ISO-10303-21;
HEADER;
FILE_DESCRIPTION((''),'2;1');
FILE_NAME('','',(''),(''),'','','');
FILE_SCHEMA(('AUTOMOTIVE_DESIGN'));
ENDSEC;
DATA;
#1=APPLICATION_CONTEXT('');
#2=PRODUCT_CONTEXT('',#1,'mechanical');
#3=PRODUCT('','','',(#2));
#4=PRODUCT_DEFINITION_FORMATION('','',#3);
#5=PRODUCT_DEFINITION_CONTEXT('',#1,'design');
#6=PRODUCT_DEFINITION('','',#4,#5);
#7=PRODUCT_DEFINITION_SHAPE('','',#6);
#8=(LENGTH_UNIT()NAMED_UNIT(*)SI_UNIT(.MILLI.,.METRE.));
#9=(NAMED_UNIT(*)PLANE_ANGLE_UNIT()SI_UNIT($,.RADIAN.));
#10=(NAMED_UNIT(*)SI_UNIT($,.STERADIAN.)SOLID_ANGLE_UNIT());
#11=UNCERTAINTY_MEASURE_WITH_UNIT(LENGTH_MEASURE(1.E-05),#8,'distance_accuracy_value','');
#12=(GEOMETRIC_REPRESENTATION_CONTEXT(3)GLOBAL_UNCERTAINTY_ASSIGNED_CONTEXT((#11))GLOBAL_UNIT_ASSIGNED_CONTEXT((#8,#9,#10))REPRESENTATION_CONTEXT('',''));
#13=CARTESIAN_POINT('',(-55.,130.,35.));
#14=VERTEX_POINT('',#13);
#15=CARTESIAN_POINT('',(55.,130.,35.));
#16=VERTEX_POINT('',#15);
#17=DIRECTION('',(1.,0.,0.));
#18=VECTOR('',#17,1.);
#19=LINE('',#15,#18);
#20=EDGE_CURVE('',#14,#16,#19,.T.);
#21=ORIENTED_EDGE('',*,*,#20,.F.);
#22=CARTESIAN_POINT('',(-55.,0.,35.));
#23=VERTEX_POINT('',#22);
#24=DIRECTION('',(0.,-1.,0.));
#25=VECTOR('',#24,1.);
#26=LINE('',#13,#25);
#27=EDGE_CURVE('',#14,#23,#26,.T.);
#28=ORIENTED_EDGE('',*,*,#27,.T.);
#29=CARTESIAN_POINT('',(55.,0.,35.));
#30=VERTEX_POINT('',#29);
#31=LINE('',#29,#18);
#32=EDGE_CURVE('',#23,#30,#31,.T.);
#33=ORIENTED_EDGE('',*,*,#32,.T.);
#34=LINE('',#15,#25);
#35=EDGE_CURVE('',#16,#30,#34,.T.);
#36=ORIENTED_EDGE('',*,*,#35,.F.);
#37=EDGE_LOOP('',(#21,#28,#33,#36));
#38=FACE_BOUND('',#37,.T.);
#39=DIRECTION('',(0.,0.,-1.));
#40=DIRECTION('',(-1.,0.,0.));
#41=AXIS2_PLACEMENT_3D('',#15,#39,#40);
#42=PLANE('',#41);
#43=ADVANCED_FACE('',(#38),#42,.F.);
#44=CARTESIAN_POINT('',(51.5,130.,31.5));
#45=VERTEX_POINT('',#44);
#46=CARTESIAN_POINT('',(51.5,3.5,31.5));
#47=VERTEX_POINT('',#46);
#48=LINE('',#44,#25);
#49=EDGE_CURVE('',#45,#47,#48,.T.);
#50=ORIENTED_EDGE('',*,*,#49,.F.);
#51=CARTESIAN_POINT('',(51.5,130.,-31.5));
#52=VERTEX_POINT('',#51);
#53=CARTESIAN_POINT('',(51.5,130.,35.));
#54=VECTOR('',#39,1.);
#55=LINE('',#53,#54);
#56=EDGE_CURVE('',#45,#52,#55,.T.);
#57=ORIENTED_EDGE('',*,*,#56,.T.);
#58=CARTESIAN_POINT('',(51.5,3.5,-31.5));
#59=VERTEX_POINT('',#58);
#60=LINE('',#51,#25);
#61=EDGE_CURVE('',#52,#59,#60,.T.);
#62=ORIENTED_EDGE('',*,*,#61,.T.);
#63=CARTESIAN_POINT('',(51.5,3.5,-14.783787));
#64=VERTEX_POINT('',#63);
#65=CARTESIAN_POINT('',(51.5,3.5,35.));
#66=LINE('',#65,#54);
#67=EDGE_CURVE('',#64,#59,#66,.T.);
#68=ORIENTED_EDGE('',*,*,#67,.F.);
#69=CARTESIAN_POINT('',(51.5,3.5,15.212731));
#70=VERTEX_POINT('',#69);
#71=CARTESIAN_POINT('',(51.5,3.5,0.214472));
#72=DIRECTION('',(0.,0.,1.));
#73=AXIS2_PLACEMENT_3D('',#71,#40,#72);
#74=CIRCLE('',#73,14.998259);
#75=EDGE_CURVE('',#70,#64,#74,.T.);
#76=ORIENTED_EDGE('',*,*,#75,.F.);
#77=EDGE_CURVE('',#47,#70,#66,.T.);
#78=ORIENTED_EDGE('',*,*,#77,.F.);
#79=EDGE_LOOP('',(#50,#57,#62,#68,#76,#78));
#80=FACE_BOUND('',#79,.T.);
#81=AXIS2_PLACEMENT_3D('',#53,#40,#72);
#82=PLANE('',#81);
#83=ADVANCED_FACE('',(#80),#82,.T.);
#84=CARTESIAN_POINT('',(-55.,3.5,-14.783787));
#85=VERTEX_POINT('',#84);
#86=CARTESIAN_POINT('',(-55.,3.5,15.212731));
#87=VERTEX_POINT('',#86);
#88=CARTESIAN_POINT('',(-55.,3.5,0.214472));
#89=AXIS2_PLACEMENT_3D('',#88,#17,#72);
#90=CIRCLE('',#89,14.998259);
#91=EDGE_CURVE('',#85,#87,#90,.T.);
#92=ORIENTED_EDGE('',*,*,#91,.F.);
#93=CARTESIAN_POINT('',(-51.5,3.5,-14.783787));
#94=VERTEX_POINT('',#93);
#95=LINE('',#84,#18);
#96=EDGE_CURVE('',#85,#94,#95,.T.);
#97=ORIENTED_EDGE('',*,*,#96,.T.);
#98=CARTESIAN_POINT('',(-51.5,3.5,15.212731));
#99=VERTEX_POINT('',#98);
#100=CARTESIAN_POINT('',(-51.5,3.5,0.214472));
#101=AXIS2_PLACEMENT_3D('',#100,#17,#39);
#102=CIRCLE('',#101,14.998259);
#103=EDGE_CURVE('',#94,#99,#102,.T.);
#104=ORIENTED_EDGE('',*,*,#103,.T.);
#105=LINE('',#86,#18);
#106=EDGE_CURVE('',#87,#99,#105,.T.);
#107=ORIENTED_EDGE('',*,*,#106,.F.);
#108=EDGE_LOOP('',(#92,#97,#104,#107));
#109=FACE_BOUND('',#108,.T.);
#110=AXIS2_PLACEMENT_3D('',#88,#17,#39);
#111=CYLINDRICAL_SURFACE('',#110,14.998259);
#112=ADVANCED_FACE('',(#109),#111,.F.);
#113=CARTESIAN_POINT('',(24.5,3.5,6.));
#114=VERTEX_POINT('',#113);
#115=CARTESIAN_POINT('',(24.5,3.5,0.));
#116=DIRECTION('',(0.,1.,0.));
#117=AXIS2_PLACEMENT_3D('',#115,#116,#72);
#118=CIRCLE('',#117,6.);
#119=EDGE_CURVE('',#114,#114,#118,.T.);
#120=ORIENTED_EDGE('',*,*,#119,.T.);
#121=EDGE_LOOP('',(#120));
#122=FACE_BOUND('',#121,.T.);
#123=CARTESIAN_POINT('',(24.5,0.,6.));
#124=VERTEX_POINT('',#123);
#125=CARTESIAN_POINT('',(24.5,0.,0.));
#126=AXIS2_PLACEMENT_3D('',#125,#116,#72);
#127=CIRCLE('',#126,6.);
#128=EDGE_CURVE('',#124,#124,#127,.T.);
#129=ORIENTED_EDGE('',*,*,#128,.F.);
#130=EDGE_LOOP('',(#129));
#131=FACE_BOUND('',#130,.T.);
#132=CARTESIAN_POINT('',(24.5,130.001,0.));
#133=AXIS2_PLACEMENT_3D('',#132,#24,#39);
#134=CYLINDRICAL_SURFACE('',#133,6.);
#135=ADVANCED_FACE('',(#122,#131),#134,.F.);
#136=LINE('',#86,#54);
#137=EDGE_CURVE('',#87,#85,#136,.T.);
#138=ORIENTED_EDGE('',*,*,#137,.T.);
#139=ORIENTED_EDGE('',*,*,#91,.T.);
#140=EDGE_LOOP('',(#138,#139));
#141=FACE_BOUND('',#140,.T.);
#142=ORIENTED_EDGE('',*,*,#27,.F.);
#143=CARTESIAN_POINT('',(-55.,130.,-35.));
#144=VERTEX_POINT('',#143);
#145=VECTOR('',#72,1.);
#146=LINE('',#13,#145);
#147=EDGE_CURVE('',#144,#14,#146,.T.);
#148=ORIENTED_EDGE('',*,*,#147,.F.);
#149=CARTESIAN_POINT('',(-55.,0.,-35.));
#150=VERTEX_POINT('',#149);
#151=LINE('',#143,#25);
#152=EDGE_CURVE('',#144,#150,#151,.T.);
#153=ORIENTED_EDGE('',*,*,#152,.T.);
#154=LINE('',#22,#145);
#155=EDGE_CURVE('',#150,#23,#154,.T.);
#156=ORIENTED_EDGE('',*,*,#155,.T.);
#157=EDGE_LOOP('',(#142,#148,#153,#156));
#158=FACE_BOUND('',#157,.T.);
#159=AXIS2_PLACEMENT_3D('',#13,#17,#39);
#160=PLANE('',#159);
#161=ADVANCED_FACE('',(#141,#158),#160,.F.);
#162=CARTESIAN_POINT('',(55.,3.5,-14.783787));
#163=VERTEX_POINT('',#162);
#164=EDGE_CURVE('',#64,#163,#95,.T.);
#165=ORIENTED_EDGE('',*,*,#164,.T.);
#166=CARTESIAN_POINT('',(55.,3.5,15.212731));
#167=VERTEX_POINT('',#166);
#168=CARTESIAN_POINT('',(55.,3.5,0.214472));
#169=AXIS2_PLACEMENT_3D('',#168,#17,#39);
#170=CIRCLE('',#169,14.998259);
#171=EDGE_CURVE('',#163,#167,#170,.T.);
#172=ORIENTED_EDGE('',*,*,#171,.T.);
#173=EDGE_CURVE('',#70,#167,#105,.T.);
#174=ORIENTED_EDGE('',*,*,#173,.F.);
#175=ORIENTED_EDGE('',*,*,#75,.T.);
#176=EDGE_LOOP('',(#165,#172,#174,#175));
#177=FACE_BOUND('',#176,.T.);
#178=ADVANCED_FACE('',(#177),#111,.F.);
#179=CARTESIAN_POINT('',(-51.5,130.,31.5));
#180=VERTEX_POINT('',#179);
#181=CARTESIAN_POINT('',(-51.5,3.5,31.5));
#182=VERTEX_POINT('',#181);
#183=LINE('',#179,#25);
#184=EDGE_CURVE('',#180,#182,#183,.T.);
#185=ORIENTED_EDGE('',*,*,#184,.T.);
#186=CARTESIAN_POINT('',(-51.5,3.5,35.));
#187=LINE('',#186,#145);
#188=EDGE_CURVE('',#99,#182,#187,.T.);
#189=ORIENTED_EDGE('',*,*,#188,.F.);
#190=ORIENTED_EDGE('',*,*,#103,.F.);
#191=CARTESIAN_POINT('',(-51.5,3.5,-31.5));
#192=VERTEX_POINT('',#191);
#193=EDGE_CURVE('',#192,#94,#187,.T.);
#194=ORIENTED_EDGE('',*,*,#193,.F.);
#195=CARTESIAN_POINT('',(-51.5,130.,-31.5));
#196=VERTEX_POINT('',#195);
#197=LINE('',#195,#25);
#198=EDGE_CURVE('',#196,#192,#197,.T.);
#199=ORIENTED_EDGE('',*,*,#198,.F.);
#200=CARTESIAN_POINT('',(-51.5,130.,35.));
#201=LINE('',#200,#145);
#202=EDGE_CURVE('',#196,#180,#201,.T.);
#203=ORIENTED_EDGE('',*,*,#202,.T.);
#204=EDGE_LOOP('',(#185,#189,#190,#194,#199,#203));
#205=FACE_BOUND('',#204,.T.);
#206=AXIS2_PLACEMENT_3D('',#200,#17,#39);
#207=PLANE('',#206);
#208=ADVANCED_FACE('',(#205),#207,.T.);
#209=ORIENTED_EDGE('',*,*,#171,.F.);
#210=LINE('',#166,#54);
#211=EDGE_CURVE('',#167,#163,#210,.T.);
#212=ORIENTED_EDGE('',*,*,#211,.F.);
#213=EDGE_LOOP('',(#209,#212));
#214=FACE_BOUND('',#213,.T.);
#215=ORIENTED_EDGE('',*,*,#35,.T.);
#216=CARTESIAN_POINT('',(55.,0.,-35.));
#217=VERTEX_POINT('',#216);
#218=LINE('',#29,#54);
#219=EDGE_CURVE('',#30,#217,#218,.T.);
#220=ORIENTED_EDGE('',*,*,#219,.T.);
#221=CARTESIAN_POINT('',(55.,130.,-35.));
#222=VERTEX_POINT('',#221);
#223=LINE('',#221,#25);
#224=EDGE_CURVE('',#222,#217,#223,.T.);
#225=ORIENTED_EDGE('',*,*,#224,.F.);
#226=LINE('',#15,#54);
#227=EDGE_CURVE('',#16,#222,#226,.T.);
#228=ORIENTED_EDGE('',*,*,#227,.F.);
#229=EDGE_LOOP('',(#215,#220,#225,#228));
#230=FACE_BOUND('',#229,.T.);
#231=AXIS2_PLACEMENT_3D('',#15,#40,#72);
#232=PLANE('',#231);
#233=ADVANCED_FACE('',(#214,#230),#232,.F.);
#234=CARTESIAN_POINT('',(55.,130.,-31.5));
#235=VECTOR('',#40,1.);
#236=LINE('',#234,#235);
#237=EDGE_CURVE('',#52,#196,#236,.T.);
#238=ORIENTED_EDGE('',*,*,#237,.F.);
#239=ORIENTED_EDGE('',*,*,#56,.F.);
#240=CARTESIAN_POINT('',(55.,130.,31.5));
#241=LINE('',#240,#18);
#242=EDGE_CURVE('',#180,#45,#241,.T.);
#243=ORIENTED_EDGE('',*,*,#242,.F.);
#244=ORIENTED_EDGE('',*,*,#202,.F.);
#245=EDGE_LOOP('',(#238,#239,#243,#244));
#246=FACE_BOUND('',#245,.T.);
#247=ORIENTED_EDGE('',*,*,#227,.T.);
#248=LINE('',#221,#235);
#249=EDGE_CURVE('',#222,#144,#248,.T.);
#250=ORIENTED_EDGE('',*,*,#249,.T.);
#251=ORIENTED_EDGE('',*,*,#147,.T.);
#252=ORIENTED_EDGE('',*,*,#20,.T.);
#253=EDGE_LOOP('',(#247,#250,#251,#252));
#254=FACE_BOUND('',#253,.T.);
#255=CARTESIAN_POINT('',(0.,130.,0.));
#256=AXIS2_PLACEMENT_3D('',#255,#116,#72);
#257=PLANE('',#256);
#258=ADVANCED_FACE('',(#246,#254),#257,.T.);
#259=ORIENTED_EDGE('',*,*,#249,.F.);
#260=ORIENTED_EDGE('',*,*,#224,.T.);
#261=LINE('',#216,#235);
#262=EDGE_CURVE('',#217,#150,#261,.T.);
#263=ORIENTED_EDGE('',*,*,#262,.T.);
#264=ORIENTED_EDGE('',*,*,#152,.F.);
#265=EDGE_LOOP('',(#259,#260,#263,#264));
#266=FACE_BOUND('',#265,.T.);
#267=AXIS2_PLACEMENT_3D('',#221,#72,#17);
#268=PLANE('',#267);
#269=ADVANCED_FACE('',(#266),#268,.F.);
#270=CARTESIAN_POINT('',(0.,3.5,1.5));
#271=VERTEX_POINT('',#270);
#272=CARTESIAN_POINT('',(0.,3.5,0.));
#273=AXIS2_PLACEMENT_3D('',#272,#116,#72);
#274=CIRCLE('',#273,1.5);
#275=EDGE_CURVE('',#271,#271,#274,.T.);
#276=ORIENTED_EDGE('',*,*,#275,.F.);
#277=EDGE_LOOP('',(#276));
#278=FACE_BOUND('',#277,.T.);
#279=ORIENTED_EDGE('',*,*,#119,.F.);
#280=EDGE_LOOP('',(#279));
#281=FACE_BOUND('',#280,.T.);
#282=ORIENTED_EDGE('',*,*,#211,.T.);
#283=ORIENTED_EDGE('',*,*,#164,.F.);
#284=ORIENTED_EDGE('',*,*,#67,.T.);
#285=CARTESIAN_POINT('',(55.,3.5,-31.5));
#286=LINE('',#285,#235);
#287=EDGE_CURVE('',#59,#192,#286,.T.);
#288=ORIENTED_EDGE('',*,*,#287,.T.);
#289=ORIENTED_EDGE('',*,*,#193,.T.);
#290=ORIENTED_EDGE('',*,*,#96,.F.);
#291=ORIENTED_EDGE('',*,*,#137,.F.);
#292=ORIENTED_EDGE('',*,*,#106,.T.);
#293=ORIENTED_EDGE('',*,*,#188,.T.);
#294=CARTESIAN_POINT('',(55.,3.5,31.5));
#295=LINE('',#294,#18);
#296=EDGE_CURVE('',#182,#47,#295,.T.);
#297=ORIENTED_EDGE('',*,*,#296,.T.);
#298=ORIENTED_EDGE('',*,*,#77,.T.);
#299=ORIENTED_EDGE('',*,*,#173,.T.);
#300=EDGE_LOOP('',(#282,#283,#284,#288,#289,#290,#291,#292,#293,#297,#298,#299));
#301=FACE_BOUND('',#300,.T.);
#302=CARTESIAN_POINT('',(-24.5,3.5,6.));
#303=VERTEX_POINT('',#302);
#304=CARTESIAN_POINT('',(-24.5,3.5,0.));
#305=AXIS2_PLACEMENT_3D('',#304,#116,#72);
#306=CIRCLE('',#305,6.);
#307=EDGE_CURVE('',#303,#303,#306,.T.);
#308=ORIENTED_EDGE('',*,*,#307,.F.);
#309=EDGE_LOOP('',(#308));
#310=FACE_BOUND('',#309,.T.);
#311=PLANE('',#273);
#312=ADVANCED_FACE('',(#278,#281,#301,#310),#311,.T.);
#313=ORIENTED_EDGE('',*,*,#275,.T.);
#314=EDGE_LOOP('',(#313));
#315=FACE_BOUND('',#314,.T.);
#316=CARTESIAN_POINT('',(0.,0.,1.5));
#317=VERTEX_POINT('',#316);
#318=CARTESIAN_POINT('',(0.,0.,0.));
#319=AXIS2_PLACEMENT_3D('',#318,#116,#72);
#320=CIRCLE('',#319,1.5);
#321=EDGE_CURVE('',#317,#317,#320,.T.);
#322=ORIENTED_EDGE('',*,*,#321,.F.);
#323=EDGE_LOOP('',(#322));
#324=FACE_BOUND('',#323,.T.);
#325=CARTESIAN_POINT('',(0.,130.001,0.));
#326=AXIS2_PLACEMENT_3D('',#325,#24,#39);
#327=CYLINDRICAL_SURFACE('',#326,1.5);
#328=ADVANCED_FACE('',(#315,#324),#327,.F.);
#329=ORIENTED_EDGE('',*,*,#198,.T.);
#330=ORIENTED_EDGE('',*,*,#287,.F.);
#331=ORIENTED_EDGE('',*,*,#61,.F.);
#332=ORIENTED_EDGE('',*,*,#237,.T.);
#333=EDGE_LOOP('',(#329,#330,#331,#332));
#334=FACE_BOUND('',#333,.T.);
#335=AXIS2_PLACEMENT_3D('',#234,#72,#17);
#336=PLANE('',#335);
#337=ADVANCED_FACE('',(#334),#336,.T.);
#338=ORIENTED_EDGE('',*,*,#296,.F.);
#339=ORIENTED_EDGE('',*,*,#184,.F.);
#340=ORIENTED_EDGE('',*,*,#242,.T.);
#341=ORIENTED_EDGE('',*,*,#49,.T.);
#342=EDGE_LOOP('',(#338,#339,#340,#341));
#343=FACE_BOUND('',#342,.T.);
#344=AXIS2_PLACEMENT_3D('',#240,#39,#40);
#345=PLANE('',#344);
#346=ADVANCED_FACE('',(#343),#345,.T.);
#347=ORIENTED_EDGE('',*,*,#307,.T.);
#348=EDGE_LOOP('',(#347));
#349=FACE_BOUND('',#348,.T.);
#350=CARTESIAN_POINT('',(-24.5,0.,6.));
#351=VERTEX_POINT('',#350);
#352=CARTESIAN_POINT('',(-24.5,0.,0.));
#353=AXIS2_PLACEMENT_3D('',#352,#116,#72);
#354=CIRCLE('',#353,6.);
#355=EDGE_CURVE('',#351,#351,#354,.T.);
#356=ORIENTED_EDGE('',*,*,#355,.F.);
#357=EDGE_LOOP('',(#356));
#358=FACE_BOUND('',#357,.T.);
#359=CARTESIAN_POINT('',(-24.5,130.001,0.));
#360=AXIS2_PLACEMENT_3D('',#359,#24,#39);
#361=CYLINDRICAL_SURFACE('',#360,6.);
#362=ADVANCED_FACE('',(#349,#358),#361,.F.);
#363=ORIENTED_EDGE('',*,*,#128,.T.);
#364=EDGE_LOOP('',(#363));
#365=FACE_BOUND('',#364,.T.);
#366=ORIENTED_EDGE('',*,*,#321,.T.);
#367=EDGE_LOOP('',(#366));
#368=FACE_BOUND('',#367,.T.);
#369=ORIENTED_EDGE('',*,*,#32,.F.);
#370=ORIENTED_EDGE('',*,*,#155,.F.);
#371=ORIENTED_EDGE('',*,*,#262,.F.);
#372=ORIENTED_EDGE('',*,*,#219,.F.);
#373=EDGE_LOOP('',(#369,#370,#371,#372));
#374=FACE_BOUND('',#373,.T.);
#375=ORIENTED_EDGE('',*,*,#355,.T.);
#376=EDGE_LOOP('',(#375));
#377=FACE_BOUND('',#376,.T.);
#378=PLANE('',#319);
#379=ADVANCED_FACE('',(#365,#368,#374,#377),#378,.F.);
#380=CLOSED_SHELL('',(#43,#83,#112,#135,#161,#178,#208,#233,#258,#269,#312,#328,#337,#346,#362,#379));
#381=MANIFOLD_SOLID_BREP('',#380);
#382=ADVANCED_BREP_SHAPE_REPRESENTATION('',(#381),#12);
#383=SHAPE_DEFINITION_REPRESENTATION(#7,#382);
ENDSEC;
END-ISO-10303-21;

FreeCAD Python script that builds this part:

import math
import FreeCAD as App
import Part
import Sketcher
Q = App.Units.Quantity


def faces_at(feature, points):
    """Names of the faces that lie closest to the given points."""
    faces = feature.Shape.Faces
    near = lambda p: min(range(len(faces)), key=lambda i: faces[i].distToShape(Part.Vertex(*p))[0])
    return sorted({f"Face{near(p) + 1}" for p in points})


def add_polygon(sketch, points):
    """Adds a closed chain of lines whose ends are joined by coincident constraints."""
    first, n = sketch.GeometryCount, len(points)
    for a, b in zip(points, points[1:] + points[:1]):
        sketch.addGeometry(Part.LineSegment(App.Vector(*a, 0), App.Vector(*b, 0)), False)
    for i in range(n):
        sketch.addConstraint(Sketcher.Constraint("Coincident", first + i, 2, first + (i + 1) % n, 1))

doc = App.newDocument("Part")
params = doc.addObject("Spreadsheet::Sheet", "Params")
for row, (alias, value) in enumerate([
    ("sketch1_width", "110 mm"),
    ("sketch1_height", "70 mm"),
    ("pad1_length", "130 mm"),
    ("thickness_wall", "3.5 mm"),
    ("sketch2_diameter", "12 mm"),
    ("sketch3_diameter", "12 mm"),
    ("sketch4_diameter", "3 mm"),
], start=1):
    params.set(f"A{row}", alias)
    params.set(f"B{row}", "=" + value)
    params.setAlias(f"B{row}", alias)

body = doc.addObject("PartDesign::Body", "Body")

sketch1 = body.newObject("Sketcher::SketchObject", "Sketch")
sketch1.AttachmentSupport = (doc.getObject("XZ_Plane"), [""])
sketch1.MapMode = "FlatFace"
add_polygon(sketch1, [(-55, -35), (-55, 35), (55, 35), (55, -35)])
sketch1.addConstraint(Sketcher.Constraint("Vertical", 0))
sketch1.addConstraint(Sketcher.Constraint("Horizontal", 1))
sketch1.addConstraint(Sketcher.Constraint("Vertical", 2))
sketch1.addConstraint(Sketcher.Constraint("Horizontal", 3))
sketch1.addConstraint(Sketcher.Constraint("Symmetric", 0, 2, 2, 2, -1, 1))
sketch1.addConstraint(Sketcher.Constraint("DistanceX", 1, 1, 1, 2, Q("110 mm")))
sketch1.addConstraint(Sketcher.Constraint("DistanceY", 0, 1, 0, 2, Q("70 mm")))
sketch1.setExpression("Constraints[9]", "Params.sketch1_width")
sketch1.setExpression("Constraints[10]", "Params.sketch1_height")
pad1 = body.newObject("PartDesign::Pad", "Pad")
pad1.Profile = sketch1
pad1.setExpression("Length", "Params.pad1_length")
pad1.Reversed = True
doc.recompute()

thickness = body.newObject("PartDesign::Thickness", "Thickness")
thickness.Base = (pad1, faces_at(pad1, [(0, 130, 0)]))
thickness.setExpression("Value", "Params.thickness_wall")
thickness.Reversed = True
thickness.Join = "Intersection"

sketch2 = body.newObject("Sketcher::SketchObject", "Sketch001")
sketch2.AttachmentSupport = (doc.getObject("XZ_Plane"), [""])
sketch2.MapMode = "FlatFace"
sketch2.addGeometry(Part.Circle(App.Vector(-24, 0, 0), App.Vector(0, 0, 1), 6), False)
sketch2.addConstraint(Sketcher.Constraint("PointOnObject", 0, 3, -1))
sketch2.addConstraint(Sketcher.Constraint("Diameter", 0, Q("12 mm")))
sketch2.addConstraint(Sketcher.Constraint("DistanceX", 0, 3, -1, 1, Q("24.5 mm")))
sketch2.setExpression("Constraints[1]", "Params.sketch2_diameter")
pocket1 = body.newObject("PartDesign::Pocket", "Pocket")
pocket1.Profile = sketch2
pocket1.Type = "UpToFirst"

sketch3 = body.newObject("Sketcher::SketchObject", "Sketch002")
sketch3.AttachmentSupport = (doc.getObject("XZ_Plane"), [""])
sketch3.MapMode = "FlatFace"
sketch3.addGeometry(Part.Circle(App.Vector(24, 0, 0), App.Vector(0, 0, 1), 6), False)
sketch3.addConstraint(Sketcher.Constraint("PointOnObject", 0, 3, -1))
sketch3.addConstraint(Sketcher.Constraint("Diameter", 0, Q("12 mm")))
sketch3.addConstraint(Sketcher.Constraint("DistanceX", -1, 1, 0, 3, Q("24.5 mm")))
sketch3.setExpression("Constraints[1]", "Params.sketch3_diameter")
pocket2 = body.newObject("PartDesign::Pocket", "Pocket001")
pocket2.Profile = sketch3
pocket2.Type = "UpToFirst"

sketch4 = body.newObject("Sketcher::SketchObject", "Sketch003")
sketch4.AttachmentSupport = (doc.getObject("XZ_Plane"), [""])
sketch4.MapMode = "FlatFace"
sketch4.addGeometry(Part.Circle(App.Vector(0, 0, 0), App.Vector(0, 0, 1), 1.5), False)
sketch4.addConstraint(Sketcher.Constraint("Coincident", 0, 3, -1, 1))
sketch4.addConstraint(Sketcher.Constraint("Diameter", 0, Q("3 mm")))
sketch4.setExpression("Constraints[1]", "Params.sketch4_diameter")
pocket3 = body.newObject("PartDesign::Pocket", "Pocket002")
pocket3.Profile = sketch4
pocket3.Type = "UpToFirst"

sketch5 = body.newObject("Sketcher::SketchObject", "Sketch004")
sketch5.AttachmentSupport = (doc.getObject("YZ_Plane"), [""])
sketch5.MapMode = "FlatFace"
sketch5.AttachmentOffset = App.Placement(App.Vector(0, 0, 55), App.Rotation())
sketch5.addGeometry(Part.LineSegment(App.Vector(4, 15, 0), App.Vector(4, -15, 0)), False)
sketch5.addGeometry(Part.ArcOfCircle(Part.Circle(App.Vector(4, 0, 0), App.Vector(0, 0, 1), 15), math.radians(-90), math.radians(0)), False)
sketch5.addGeometry(Part.ArcOfCircle(Part.Circle(App.Vector(4, 0, 0), App.Vector(0, 0, 1), 15), math.radians(0), math.radians(90)), False)
sketch5.addConstraint(Sketcher.Constraint("Coincident", 0, 2, 1, 1))
sketch5.addConstraint(Sketcher.Constraint("Tangent", 1, 2, 2, 1))
sketch5.addConstraint(Sketcher.Constraint("Coincident", 2, 2, 0, 1))
sketch5.addConstraint(Sketcher.Constraint("Vertical", 0))
sketch5.addConstraint(Sketcher.Constraint("Equal", 1, 2))
sketch5.addConstraint(Sketcher.Constraint("Horizontal", 2, 3, 1, 2))
sketch5.addConstraint(Sketcher.Constraint("Vertical", 2, 3, 0, 2))
sketch5.addConstraint(Sketcher.Constraint("DistanceX", -1, 1, 1, 3, Q("3.5 mm")))
sketch5.addConstraint(Sketcher.Constraint("Radius", 1, Q("14.998259 mm")))
sketch5.addConstraint(Sketcher.Constraint("DistanceY", -1, 1, 1, 3, Q("0.214472 mm")))
pocket4 = body.newObject("PartDesign::Pocket", "Pocket003")
pocket4.Profile = sketch5
pocket4.Type = "ThroughAll"
pocket4.Midplane = True

doc.recompute()
